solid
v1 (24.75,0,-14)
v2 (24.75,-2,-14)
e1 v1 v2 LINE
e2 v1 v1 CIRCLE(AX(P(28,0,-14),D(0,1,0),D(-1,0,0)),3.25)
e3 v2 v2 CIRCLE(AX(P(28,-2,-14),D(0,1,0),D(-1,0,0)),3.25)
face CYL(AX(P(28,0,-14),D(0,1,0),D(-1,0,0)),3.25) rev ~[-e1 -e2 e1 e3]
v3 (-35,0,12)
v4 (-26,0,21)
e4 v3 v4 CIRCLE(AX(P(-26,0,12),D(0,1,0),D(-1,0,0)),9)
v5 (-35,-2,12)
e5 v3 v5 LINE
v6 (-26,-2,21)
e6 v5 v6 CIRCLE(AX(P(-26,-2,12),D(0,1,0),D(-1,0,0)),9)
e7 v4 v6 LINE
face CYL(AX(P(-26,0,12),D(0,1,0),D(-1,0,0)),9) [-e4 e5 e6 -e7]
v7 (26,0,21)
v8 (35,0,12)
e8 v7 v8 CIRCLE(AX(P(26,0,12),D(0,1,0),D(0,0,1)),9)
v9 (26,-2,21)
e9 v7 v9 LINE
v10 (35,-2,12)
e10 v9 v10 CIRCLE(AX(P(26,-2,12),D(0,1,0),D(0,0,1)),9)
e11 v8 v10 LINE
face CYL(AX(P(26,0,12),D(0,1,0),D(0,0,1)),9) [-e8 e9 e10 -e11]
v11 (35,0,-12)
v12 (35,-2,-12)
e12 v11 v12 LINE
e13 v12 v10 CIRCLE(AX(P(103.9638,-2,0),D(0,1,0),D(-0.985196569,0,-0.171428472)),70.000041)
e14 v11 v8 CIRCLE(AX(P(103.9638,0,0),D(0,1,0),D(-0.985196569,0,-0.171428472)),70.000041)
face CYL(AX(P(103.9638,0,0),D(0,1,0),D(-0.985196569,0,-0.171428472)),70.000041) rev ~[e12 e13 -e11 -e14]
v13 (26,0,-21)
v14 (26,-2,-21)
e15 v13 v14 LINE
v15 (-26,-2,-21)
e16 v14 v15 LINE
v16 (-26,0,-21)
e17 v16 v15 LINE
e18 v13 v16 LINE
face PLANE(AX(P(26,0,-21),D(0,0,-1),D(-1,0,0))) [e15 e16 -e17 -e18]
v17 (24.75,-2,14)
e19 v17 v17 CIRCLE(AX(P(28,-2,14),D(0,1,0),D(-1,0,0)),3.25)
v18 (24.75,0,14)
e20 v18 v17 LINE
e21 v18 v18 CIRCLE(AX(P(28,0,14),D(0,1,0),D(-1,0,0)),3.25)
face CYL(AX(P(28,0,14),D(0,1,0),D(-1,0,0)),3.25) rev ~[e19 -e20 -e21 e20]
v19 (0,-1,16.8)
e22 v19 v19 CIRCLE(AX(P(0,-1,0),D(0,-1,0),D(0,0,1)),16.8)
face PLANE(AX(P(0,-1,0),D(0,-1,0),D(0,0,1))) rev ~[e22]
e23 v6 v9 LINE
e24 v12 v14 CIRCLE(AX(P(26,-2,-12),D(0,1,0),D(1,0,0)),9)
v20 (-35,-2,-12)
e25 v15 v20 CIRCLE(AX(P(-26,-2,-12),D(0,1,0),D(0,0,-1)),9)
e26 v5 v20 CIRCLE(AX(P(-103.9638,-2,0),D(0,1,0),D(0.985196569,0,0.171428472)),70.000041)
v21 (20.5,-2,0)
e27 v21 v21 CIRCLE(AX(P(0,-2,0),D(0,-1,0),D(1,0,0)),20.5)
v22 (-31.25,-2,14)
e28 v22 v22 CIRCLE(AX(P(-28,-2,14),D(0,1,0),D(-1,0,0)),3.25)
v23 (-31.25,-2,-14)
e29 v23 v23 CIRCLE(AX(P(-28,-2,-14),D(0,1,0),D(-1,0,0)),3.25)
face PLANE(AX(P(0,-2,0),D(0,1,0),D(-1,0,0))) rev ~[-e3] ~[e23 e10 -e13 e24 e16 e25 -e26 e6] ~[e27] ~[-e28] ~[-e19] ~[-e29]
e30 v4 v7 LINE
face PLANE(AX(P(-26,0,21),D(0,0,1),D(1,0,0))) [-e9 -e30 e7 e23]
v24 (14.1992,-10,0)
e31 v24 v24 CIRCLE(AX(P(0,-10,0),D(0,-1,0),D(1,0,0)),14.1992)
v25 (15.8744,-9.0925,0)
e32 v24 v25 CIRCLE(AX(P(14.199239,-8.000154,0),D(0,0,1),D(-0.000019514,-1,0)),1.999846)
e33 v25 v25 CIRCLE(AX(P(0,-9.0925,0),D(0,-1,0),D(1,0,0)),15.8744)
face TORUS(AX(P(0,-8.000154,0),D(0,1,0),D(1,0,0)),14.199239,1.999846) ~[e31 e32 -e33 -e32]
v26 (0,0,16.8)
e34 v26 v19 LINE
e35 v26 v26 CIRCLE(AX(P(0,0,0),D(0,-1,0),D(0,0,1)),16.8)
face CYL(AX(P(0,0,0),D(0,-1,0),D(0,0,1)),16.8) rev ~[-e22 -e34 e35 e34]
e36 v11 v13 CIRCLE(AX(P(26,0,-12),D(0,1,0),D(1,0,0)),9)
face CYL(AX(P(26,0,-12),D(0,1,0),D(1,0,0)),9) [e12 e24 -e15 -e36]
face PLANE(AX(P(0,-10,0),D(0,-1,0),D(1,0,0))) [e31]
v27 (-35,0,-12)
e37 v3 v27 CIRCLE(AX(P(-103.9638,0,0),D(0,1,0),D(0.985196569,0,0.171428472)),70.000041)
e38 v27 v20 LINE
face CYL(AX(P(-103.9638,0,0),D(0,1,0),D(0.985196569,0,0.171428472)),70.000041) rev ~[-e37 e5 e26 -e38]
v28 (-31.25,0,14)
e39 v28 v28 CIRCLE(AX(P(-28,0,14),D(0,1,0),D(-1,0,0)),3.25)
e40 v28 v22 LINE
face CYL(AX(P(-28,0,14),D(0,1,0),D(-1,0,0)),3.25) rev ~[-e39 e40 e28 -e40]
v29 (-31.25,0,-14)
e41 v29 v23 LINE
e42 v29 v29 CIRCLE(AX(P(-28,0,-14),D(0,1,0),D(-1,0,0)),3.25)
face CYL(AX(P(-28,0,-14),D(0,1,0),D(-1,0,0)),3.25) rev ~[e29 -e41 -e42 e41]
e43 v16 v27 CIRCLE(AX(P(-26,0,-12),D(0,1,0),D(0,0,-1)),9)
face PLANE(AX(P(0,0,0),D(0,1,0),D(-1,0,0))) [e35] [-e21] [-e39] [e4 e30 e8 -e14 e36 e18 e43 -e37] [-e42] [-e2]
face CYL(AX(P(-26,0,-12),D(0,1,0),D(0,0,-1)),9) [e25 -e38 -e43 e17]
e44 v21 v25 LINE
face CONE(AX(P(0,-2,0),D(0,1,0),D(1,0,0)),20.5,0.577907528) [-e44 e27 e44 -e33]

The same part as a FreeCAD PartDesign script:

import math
import FreeCAD as App
import Part
import Sketcher
from FreeCAD import Vector
Q = App.Units.Quantity

doc = App.newDocument("Part")
params = doc.addObject("Spreadsheet::Sheet", "Params")
for row, (alias, value) in enumerate([
    ("sketch1_radius", "70 mm"),
    ("sketch1_radius2", "9 mm"),
    ("sketch1_diameter", "6.5 mm"),
    ("sketch1_width", "52 mm"),
    ("pad1_length", "2 mm"),
    ("sketch2_diameter", "33.6 mm"),
    ("hole_diameter", "33.6 mm"),
    ("hole_depth", "1 mm"),
    ("sketch3_radius", "2 mm"),
    ("sketch3_height", "8 mm"),
    ("sketch3_width", "20.5 mm"),
    ("revolution_angle", "360 deg"),
], start=1):
    params.set(f"A{row}", alias)
    params.set(f"B{row}", "=" + value)
    params.setAlias(f"B{row}", alias)

body = doc.addObject("PartDesign::Body", "Body")

# Sketch on XZ plane
sketch1 = doc.addObject("Sketcher::SketchObject", "Sketch")
body.addObject(sketch1)
sketch1.AttachmentSupport = (doc.XZ_Plane, [""])
sketch1.MapMode = "FlatFace"
sketch1.addGeometry(Part.ArcOfCircle(Part.Circle(Vector(-104, 0, 0), Vector(0, 0, 1), 70), math.radians(-9.87), math.radians(9.87)), False)
sketch1.addGeometry(Part.ArcOfCircle(Part.Circle(Vector(-26, 12, 0), Vector(0, 0, 1), 9), math.radians(90), math.radians(180)), False)
sketch1.addGeometry(Part.LineSegment(Vector(-26, 21, 0), Vector(26, 21, 0)), False)
sketch1.addGeometry(Part.ArcOfCircle(Part.Circle(Vector(26, 12, 0), Vector(0, 0, 1), 9), math.radians(0), math.radians(90)), False)
sketch1.addGeometry(Part.ArcOfCircle(Part.Circle(Vector(104, 0, 0), Vector(0, 0, 1), 70), math.radians(170.13), math.radians(189.87)), False)
sketch1.addGeometry(Part.ArcOfCircle(Part.Circle(Vector(26, -12, 0), Vector(0, 0, 1), 9), math.radians(-90), math.radians(0)), False)
sketch1.addGeometry(Part.LineSegment(Vector(26, -21, 0), Vector(-26, -21, 0)), False)
sketch1.addGeometry(Part.ArcOfCircle(Part.Circle(Vector(-26, -12, 0), Vector(0, 0, 1), 9), math.radians(180), math.radians(270)), False)
sketch1.addGeometry(Part.Circle(Vector(28, -14, 0), Vector(0, 0, 1), 3.2), False)
sketch1.addGeometry(Part.Circle(Vector(-28, -14, 0), Vector(0, 0, 1), 3.2), False)
sketch1.addGeometry(Part.Circle(Vector(28, 14, 0), Vector(0, 0, 1), 3.2), False)
sketch1.addGeometry(Part.Circle(Vector(-28, 14, 0), Vector(0, 0, 1), 3.2), False)
sketch1.addConstraint(Sketcher.Constraint("Coincident", 0, 2, 1, 2))
sketch1.addConstraint(Sketcher.Constraint("Tangent", 1, 1, 2, 1))
sketch1.addConstraint(Sketcher.Constraint("Tangent", 2, 2, 3, 2))
sketch1.addConstraint(Sketcher.Constraint("Coincident", 3, 1, 4, 1))
sketch1.addConstraint(Sketcher.Constraint("Coincident", 4, 2, 5, 2))
sketch1.addConstraint(Sketcher.Constraint("Tangent", 5, 1, 6, 1))
sketch1.addConstraint(Sketcher.Constraint("Tangent", 6, 2, 7, 2))
sketch1.addConstraint(Sketcher.Constraint("Coincident", 7, 1, 0, 1))
sketch1.addConstraint(Sketcher.Constraint("Horizontal", 2))
sketch1.addConstraint(Sketcher.Constraint("Horizontal", 6))
sketch1.addConstraint(Sketcher.Constraint("Equal", 1, 3))
sketch1.addConstraint(Sketcher.Constraint("Equal", 0, 4))
sketch1.addConstraint(Sketcher.Constraint("Equal", 3, 5))
sketch1.addConstraint(Sketcher.Constraint("Equal", 5, 7))
sketch1.addConstraint(Sketcher.Constraint("Equal", 8, 9))
sketch1.addConstraint(Sketcher.Constraint("Equal", 9, 10))
sketch1.addConstraint(Sketcher.Constraint("Equal", 10, 11))
sketch1.addConstraint(Sketcher.Constraint("Symmetric", 0, 3, 4, 3, -1, 1))
sketch1.addConstraint(Sketcher.Constraint("Symmetric", 1, 3, 5, 3, -1, 1))
sketch1.addConstraint(Sketcher.Constraint("Symmetric", 9, 3, 10, 3, -1, 1))
sketch1.addConstraint(Sketcher.Constraint("Symmetric", 8, 3, 11, 3, -1, 1))
sketch1.addConstraint(Sketcher.Constraint("Symmetric", 8, 3, 9, 3, -2))
sketch1.addConstraint(Sketcher.Constraint("Symmetric", 0, 2, 3, 1, -2))
sketch1.addConstraint(Sketcher.Constraint("Horizontal", 3, 3, 0, 2))
sketch1.addConstraint(Sketcher.Constraint("Horizontal", 4, 2, 7, 1))
sketch1.addConstraint(Sketcher.Constraint("Radius", 0, Q("70 mm")))
sketch1.addConstraint(Sketcher.Constraint("Radius", 1, Q("9 mm")))
sketch1.addConstraint(Sketcher.Constraint("Diameter", 8, Q("6.5 mm")))
sketch1.addConstraint(Sketcher.Constraint("DistanceX", 2, 1, 2, 2, Q("52 mm")))
sketch1.addConstraint(Sketcher.Constraint("DistanceY", -1, 1, 1, 3, Q("12 mm")))
sketch1.addConstraint(Sketcher.Constraint("DistanceX", -1, 1, 8, 3, Q("28 mm")))
sketch1.addConstraint(Sketcher.Constraint("DistanceY", 8, 3, -1, 1, Q("14 mm")))
sketch1.setExpression("Constraints[25]", "Params.sketch1_radius")
sketch1.setExpression("Constraints[26]", "Params.sketch1_radius2")
sketch1.setExpression("Constraints[27]", "Params.sketch1_diameter")
sketch1.setExpression("Constraints[28]", "Params.sketch1_width")
pad1 = doc.addObject("PartDesign::Pad", "Pad")
body.addObject(pad1)
pad1.Profile = sketch1
pad1.setExpression("Length", "Params.pad1_length")

# Sketch on XZ plane
sketch2 = doc.addObject("Sketcher::SketchObject", "Sketch001")
body.addObject(sketch2)
sketch2.AttachmentSupport = (doc.XZ_Plane, [""])
sketch2.MapMode = "FlatFace"
sketch2.addGeometry(Part.Circle(Vector(0, 0, 0), Vector(0, 0, 1), 17), False)
sketch2.addConstraint(Sketcher.Constraint("Coincident", 0, 3, -1, 1))
sketch2.addConstraint(Sketcher.Constraint("Diameter", 0, Q("33.6 mm")))
sketch2.setExpression("Constraints[1]", "Params.sketch2_diameter")
doc.recompute()
hole = doc.addObject("PartDesign::Hole", "Hole")
body.addObject(hole)
hole.Profile = sketch2
hole.ThreadType = "None"
hole.setExpression("Diameter", "Params.hole_diameter")
hole.DepthType = "Dimension"
hole.setExpression("Depth", "Params.hole_depth")
hole.DrillPoint = "Flat"
hole.Reversed = True

# Sketch on XY plane
sketch3 = doc.addObject("Sketcher::SketchObject", "Sketch002")
body.addObject(sketch3)
sketch3.AttachmentSupport = (doc.XY_Plane, [""])
sketch3.MapMode = "FlatFace"
sketch3.addGeometry(Part.LineSegment(Vector(0, -2, 0), Vector(0, -10, 0)), False)
sketch3.addGeometry(Part.LineSegment(Vector(0, -10, 0), Vector(14.2, -10, 0)), False)
sketch3.addGeometry(Part.ArcOfCircle(Part.Circle(Vector(14.2, -8, 0), Vector(0, 0, 1), 2), math.radians(-90), math.radians(-33)), False)
sketch3.addGeometry(Part.LineSegment(Vector(15.9, -9.1, 0), Vector(20.5, -2, 0)), False)
sketch3.addGeometry(Part.LineSegment(Vector(20.5, -2, 0), Vector(0, -2, 0)), False)
sketch3.addConstraint(Sketcher.Constraint("Coincident", 0, 2, 1, 1))
sketch3.addConstraint(Sketcher.Constraint("Tangent", 1, 2, 2, 1))
sketch3.addConstraint(Sketcher.Constraint("Tangent", 2, 2, 3, 1))
sketch3.addConstraint(Sketcher.Constraint("Coincident", 3, 2, 4, 1))
sketch3.addConstraint(Sketcher.Constraint("Coincident", 4, 2, 0, 1))
sketch3.addConstraint(Sketcher.Constraint("Vertical", 0))
sketch3.addConstraint(Sketcher.Constraint("Horizontal", 1))
sketch3.addConstraint(Sketcher.Constraint("Horizontal", 4))
sketch3.addConstraint(Sketcher.Constraint("PointOnObject", 0, 2, -2))
sketch3.addConstraint(Sketcher.Constraint("Radius", 2, Q("2 mm")))
sketch3.addConstraint(Sketcher.Constraint("DistanceY", 0, 2, 0, 1, Q("8 mm")))
sketch3.addConstraint(Sketcher.Constraint("DistanceX", 4, 2, 4, 1, Q("20.5 mm")))
sketch3.addConstraint(Sketcher.Constraint("DistanceY", 2, 3, -1, 1, Q("8 mm")))
sketch3.addConstraint(Sketcher.Constraint("DistanceX", 1, 1, 1, 2, Q("14.1992 mm")))
sketch3.setExpression("Constraints[9]", "Params.sketch3_radius")
sketch3.setExpression("Constraints[10]", "Params.sketch3_height")
sketch3.setExpression("Constraints[11]", "Params.sketch3_width")
revolution = doc.addObject("PartDesign::Revolution", "Revolution")
body.addObject(revolution)
revolution.Profile = sketch3
revolution.ReferenceAxis = (sketch3, ["V_Axis"])
revolution.setExpression("Angle", "Params.revolution_angle")

doc.recompute()
